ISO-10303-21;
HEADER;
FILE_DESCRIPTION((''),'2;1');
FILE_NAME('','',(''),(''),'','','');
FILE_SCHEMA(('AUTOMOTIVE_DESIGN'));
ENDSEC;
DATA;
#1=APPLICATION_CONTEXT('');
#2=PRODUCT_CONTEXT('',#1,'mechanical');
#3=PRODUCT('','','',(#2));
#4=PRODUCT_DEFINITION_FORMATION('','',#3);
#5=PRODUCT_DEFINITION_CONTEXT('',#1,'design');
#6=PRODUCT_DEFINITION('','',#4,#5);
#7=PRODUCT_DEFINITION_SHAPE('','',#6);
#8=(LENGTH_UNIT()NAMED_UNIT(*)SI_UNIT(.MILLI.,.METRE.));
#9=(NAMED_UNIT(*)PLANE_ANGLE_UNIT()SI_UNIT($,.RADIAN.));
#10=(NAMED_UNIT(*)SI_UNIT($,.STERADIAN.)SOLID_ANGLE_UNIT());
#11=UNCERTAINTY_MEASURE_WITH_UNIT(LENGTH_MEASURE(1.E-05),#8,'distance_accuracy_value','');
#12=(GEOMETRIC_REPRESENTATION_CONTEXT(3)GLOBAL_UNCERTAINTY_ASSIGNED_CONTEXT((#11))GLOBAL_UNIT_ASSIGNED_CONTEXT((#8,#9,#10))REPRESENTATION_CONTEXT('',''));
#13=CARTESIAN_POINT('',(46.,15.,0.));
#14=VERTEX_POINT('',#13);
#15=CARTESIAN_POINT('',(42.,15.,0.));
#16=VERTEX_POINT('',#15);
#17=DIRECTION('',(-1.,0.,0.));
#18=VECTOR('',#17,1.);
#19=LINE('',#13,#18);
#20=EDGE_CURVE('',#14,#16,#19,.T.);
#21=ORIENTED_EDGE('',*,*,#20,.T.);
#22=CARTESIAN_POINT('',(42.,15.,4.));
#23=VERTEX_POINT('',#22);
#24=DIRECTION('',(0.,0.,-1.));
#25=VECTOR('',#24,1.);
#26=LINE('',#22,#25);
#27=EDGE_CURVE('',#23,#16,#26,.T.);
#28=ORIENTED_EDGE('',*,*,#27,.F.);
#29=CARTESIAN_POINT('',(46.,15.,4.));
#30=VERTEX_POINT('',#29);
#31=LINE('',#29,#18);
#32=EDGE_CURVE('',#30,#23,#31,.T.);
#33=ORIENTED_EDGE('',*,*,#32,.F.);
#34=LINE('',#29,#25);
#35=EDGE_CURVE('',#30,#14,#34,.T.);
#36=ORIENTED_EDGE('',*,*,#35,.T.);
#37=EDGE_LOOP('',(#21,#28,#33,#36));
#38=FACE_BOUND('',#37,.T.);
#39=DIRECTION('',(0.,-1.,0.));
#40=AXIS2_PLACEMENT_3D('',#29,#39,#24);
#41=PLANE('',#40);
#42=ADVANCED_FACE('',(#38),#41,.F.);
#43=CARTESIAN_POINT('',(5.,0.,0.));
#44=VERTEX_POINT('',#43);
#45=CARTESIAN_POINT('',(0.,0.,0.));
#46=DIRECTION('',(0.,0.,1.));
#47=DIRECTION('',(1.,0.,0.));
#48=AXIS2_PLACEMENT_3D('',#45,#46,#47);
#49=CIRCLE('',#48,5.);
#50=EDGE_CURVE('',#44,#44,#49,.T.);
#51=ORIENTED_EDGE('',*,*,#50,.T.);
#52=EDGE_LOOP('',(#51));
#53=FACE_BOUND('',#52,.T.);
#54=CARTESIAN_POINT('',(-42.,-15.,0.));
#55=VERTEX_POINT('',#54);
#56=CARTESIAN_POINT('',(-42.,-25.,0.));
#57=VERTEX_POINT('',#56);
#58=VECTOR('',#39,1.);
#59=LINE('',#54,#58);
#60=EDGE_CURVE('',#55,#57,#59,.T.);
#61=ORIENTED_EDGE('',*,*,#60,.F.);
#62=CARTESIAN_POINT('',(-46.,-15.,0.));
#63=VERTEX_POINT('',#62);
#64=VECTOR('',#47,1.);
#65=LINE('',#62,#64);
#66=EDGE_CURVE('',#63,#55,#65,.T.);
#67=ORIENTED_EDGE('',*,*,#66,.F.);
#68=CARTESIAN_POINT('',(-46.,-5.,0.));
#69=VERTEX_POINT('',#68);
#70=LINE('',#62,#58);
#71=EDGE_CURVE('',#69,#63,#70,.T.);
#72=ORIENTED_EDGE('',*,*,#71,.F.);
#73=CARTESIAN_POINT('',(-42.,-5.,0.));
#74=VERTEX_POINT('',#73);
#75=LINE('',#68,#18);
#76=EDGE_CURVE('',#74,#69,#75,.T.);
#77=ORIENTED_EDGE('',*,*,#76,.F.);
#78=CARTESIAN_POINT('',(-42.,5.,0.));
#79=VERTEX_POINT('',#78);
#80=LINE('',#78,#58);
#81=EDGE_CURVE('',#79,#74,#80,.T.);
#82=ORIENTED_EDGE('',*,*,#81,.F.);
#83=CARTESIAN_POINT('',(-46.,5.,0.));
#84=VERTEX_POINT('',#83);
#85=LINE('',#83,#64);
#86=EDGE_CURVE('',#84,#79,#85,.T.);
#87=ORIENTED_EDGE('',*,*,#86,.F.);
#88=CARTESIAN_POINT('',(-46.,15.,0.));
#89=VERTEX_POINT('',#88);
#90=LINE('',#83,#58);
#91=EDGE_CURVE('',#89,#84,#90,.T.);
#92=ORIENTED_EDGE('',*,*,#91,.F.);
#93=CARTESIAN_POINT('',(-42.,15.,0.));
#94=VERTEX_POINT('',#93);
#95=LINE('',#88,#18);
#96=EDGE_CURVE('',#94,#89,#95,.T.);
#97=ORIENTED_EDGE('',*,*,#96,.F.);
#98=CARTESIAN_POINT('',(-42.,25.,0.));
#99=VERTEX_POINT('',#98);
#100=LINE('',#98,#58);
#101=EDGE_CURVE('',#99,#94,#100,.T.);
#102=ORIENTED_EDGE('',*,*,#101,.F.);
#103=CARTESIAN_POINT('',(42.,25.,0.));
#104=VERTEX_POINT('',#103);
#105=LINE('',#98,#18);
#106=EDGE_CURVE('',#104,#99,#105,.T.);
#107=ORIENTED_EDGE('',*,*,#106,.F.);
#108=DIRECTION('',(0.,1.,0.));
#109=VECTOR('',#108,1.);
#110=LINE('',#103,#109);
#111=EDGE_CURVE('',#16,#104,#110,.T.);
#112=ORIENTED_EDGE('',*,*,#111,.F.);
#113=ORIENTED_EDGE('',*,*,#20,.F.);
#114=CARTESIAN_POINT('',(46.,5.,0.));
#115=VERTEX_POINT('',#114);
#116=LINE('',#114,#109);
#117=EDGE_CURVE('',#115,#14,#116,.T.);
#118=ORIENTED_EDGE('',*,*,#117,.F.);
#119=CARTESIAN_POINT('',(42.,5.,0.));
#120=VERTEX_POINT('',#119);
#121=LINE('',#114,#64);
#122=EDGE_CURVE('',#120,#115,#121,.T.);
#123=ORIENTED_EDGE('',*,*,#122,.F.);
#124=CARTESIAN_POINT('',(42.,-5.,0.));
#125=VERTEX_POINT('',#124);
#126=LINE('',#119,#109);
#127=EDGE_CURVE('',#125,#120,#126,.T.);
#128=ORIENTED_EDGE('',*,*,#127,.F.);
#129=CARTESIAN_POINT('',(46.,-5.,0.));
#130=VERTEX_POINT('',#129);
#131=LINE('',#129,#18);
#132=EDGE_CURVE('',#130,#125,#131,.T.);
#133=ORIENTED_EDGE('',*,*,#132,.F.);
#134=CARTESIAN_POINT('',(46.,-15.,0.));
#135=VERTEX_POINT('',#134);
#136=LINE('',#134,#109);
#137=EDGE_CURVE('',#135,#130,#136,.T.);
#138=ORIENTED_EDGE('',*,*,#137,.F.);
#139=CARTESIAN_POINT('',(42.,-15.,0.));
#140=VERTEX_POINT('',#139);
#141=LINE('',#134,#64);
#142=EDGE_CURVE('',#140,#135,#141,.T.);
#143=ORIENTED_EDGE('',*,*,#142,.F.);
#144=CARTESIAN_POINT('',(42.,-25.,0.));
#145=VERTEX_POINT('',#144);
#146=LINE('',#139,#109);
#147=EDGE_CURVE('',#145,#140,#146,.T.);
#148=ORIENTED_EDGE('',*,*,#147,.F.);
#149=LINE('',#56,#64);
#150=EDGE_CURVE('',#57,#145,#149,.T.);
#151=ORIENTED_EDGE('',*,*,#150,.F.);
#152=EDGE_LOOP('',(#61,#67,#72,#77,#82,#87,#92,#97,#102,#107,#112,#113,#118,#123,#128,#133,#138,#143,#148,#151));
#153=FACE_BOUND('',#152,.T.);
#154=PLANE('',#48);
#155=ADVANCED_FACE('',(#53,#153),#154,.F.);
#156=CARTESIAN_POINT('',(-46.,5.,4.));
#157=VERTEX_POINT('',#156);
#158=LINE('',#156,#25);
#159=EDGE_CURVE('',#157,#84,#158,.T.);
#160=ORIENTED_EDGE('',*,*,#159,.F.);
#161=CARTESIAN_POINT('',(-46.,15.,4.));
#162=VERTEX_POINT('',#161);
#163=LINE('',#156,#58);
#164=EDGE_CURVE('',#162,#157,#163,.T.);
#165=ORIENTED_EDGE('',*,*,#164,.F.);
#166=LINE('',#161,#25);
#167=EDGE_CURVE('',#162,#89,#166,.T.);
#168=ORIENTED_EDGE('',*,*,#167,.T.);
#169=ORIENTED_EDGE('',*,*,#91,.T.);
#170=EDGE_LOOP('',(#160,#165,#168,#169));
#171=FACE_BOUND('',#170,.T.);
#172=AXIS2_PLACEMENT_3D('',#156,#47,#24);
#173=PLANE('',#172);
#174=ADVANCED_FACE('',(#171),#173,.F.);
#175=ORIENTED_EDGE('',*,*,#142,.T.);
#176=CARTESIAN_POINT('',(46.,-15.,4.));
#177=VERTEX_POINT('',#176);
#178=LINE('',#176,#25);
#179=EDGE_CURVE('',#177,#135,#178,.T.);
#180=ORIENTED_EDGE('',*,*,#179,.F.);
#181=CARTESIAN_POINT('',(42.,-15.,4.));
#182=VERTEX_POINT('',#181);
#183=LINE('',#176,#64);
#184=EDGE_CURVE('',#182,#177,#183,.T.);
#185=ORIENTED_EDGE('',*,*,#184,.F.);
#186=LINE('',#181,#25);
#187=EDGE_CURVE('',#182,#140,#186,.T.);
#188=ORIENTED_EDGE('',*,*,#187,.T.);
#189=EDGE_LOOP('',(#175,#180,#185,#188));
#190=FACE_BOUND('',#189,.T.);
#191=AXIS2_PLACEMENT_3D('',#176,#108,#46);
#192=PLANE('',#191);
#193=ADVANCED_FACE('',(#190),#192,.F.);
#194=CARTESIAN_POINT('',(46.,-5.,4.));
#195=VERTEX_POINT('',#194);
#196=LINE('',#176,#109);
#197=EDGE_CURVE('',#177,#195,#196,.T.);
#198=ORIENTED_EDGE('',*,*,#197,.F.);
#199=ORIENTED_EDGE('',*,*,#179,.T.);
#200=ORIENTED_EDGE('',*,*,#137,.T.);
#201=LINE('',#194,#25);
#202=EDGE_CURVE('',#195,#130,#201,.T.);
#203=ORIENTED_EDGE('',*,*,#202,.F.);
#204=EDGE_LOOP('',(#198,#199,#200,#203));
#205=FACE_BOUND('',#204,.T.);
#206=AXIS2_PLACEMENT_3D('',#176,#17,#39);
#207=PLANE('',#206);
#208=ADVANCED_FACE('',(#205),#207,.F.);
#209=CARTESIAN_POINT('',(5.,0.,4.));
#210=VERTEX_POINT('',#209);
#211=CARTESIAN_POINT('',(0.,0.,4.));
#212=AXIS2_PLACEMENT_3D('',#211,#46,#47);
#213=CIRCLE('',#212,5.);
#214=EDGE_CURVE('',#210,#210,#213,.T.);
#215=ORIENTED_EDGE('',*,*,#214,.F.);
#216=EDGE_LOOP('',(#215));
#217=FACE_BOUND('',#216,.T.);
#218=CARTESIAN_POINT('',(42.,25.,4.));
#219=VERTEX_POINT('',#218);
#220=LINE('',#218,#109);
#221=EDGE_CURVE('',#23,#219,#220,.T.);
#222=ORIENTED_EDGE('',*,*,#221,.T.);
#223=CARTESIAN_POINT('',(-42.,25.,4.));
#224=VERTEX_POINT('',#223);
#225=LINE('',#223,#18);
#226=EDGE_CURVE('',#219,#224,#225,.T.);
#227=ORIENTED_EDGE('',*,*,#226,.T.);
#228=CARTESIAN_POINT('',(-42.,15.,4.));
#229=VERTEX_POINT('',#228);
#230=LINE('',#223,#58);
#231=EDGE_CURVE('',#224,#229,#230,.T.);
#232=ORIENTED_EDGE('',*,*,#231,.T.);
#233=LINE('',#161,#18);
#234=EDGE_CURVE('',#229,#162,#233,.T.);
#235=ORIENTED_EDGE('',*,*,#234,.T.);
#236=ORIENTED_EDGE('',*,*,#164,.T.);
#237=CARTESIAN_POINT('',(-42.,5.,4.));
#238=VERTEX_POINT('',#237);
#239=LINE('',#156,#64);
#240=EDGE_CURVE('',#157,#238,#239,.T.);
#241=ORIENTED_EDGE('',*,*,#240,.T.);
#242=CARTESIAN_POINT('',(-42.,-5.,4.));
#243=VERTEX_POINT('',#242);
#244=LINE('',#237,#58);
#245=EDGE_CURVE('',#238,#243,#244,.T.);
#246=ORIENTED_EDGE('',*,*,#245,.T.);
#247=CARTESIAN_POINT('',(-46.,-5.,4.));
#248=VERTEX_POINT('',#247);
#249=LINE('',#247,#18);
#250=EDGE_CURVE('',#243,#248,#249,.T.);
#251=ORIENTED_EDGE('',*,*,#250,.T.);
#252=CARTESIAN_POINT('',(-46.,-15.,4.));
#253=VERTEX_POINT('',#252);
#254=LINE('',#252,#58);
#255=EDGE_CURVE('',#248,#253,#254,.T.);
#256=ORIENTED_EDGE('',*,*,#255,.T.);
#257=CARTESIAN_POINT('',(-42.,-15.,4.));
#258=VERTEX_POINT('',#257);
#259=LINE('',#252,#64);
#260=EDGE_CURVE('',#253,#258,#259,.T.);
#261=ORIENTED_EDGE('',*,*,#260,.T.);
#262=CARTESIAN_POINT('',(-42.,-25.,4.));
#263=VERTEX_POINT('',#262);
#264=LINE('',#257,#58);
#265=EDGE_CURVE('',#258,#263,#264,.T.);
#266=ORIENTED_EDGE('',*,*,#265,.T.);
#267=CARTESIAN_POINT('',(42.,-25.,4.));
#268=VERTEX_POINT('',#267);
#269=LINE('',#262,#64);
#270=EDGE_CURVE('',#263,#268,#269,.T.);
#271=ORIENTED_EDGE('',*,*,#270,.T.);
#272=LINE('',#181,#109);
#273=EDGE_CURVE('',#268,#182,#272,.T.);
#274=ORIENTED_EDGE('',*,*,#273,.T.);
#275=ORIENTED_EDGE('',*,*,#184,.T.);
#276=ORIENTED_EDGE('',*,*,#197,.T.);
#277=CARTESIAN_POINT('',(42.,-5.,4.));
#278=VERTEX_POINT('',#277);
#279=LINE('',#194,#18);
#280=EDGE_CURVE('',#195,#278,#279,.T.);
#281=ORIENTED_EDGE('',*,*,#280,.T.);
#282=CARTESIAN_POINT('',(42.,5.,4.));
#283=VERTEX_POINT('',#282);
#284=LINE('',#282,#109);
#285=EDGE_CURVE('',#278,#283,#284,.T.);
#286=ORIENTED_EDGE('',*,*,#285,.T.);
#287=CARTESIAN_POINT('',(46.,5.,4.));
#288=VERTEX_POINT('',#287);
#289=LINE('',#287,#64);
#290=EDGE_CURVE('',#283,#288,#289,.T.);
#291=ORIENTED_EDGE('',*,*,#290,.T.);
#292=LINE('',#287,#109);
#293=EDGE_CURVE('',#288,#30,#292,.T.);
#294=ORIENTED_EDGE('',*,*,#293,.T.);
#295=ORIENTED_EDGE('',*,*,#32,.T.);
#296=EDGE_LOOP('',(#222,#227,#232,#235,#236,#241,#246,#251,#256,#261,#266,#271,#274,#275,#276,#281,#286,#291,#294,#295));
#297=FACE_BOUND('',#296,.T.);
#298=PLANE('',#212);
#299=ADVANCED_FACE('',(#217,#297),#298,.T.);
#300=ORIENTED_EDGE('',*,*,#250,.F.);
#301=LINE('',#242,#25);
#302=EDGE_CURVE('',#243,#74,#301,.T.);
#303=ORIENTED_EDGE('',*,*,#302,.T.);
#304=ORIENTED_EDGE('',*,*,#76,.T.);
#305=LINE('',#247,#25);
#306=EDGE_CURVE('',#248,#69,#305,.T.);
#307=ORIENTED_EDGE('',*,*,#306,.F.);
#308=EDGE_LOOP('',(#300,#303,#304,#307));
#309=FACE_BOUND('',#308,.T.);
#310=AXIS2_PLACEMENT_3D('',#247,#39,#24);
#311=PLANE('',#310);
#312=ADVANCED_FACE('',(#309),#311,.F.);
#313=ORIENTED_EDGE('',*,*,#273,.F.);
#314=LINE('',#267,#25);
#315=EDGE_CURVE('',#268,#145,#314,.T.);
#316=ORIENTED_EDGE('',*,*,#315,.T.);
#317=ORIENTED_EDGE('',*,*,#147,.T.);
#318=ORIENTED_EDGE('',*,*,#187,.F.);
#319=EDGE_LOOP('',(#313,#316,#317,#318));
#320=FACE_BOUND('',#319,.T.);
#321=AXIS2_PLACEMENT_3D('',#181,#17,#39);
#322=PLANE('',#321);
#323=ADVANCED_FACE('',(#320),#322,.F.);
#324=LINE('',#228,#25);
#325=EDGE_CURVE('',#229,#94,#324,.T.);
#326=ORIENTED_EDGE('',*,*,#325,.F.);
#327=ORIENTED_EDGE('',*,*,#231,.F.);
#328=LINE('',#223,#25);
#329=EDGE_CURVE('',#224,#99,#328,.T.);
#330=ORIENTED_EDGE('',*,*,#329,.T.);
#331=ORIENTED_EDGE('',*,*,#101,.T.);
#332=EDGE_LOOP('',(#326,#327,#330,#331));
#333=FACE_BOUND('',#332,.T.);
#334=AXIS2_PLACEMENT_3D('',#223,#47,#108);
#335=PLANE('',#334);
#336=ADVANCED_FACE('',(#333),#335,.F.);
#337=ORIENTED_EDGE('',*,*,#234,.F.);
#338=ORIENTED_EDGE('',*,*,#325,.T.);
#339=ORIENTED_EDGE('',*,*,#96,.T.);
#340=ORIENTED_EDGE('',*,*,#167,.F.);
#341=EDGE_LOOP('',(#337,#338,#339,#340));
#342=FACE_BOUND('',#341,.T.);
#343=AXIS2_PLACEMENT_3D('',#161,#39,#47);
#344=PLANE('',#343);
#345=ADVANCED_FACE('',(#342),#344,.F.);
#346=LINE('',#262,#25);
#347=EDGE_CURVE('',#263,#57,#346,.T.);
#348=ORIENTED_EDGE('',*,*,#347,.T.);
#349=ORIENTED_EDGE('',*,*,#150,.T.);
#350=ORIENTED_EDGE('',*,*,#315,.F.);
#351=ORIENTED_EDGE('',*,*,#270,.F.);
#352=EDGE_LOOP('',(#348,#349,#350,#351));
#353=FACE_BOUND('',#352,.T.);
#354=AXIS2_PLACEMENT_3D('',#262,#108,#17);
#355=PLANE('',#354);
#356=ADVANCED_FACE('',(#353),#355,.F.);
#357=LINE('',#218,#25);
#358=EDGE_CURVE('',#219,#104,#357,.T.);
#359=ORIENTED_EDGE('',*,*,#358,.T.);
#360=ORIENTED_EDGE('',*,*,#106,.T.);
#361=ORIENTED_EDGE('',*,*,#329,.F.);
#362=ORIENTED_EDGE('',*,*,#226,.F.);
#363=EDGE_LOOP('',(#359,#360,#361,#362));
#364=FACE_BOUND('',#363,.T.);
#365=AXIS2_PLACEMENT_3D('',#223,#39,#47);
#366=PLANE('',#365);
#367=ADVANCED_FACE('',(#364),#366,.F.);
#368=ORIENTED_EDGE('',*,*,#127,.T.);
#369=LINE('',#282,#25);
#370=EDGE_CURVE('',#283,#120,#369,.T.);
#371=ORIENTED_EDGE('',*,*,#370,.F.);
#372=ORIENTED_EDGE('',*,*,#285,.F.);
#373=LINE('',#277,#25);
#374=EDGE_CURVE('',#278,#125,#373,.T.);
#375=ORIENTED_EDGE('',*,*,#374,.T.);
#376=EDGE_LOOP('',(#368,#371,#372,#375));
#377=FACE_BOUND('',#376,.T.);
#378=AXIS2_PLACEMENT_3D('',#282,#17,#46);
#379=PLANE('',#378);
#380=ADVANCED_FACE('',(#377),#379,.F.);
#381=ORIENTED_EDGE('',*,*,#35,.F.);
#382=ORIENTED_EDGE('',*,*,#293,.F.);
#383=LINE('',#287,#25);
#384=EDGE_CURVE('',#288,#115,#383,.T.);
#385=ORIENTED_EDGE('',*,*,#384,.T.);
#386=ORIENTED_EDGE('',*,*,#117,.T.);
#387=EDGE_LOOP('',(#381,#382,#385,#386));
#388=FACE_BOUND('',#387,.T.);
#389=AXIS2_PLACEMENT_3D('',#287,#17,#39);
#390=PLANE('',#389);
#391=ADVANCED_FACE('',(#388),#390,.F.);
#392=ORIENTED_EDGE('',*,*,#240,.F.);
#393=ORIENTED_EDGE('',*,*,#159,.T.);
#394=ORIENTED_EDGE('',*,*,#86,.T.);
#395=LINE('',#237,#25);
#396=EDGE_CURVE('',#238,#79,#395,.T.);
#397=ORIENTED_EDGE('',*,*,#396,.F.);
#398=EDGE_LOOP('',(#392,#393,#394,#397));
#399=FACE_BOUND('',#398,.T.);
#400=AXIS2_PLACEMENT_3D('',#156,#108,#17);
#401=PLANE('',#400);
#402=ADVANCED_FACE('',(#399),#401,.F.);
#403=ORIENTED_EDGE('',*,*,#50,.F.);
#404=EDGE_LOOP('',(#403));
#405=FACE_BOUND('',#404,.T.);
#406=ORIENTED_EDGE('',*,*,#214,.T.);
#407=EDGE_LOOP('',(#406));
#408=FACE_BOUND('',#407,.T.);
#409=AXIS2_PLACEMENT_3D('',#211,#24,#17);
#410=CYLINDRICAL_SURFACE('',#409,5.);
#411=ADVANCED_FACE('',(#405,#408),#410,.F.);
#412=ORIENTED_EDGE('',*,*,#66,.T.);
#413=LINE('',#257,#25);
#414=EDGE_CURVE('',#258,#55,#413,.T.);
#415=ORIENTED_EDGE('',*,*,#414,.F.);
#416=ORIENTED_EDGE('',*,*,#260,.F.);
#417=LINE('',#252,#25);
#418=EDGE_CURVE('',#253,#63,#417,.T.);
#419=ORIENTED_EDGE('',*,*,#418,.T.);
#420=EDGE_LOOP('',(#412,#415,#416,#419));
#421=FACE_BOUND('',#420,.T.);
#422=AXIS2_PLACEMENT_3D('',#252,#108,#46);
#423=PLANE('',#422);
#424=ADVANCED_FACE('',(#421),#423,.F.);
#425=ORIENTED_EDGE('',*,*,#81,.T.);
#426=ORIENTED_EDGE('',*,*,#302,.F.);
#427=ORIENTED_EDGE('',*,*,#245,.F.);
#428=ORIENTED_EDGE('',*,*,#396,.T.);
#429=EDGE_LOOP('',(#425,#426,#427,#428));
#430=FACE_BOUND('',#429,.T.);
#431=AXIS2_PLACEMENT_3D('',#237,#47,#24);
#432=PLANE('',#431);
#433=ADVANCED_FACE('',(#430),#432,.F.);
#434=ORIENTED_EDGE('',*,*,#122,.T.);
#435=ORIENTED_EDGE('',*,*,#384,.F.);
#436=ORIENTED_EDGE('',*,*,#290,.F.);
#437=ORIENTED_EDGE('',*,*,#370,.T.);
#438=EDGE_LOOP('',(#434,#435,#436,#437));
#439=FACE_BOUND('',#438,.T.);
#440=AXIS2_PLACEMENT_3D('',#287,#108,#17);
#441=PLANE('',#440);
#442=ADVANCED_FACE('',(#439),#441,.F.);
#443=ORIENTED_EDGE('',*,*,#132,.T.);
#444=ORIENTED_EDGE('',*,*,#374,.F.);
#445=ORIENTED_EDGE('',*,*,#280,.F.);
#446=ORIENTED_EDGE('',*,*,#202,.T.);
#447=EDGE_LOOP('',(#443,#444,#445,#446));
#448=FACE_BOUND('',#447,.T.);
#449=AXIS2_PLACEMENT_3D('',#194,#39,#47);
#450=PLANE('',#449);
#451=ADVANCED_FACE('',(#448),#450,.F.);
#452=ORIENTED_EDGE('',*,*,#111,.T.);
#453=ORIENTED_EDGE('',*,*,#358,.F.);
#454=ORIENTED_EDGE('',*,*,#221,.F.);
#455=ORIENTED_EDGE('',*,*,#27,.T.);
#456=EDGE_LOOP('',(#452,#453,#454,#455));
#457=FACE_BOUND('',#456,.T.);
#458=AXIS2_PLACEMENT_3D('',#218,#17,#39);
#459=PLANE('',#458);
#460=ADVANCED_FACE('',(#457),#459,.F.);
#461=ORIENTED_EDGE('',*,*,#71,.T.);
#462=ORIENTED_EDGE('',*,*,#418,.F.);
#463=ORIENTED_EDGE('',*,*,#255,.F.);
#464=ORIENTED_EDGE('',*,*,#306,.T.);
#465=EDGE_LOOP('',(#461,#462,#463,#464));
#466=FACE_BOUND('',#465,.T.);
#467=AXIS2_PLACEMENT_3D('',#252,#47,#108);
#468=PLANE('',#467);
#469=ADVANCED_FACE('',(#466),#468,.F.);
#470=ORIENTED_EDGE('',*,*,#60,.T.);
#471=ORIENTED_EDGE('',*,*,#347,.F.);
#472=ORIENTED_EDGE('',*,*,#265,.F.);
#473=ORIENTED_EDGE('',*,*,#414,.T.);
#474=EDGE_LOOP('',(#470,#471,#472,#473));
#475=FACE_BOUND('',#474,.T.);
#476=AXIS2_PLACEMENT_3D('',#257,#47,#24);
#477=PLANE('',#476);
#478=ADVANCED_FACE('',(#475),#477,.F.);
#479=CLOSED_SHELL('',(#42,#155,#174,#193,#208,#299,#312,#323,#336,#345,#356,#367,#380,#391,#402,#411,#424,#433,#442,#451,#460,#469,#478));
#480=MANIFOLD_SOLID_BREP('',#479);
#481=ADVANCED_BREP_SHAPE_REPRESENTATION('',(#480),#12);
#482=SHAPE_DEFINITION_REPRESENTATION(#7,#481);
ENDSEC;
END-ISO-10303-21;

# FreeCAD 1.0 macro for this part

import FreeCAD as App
import Part
import Sketcher
from FreeCAD import Vector


def add_polygon(sketch, points):
    """Adds a closed chain of lines whose ends are joined by coincident constraints."""
    first, n = sketch.GeometryCount, len(points)
    for a, b in zip(points, points[1:] + points[:1]):
        sketch.addGeometry(Part.LineSegment(App.Vector(*a, 0), App.Vector(*b, 0)), False)
    for i in range(n):
        sketch.addConstraint(Sketcher.Constraint("Coincident", first + i, 2, first + (i + 1) % n, 1))

doc = App.newDocument("Part")
params = doc.addObject("Spreadsheet::Sheet", "Params")
for row, (alias, value) in enumerate([
    ("sketch1_diameter", "10 mm"),
    ("sketch1_width", "4 mm"),
    ("sketch1_width2", "84 mm"),
    ("sketch1_height", "10 mm"),
    ("pad1_length", "4 mm"),
], start=1):
    params.set(f"A{row}", alias)
    params.set(f"B{row}", "=" + value)
    params.setAlias(f"B{row}", alias)

body = doc.addObject("PartDesign::Body", "Body")

sketch1 = doc.addObject("Sketcher::SketchObject", "Sketch")
body.addObject(sketch1)
sketch1.AttachmentSupport = (doc.XY_Plane, [""])
sketch1.MapMode = "FlatFace"
add_polygon(sketch1, [(-46, 15), (-46, 5), (-42, 5), (-42, -5), (-46, -5), (-46, -15), (-42, -15), (-42, -25), (42, -25), (42, -15), (46, -15), (46, -5), (42, -5), (42, 5), (46, 5), (46, 15), (42, 15), (42, 25), (-42, 25), (-42, 15)])
sketch1.addGeometry(Part.Circle(Vector(0, 0, 0), Vector(0, 0, 1), 5), False)
sketch1.addConstraint(Sketcher.Constraint("Vertical", 0))
sketch1.addConstraint(Sketcher.Constraint("Horizontal", 1))
sketch1.addConstraint(Sketcher.Constraint("Vertical", 2))
sketch1.addConstraint(Sketcher.Constraint("Horizontal", 3))
sketch1.addConstraint(Sketcher.Constraint("Vertical", 4))
sketch1.addConstraint(Sketcher.Constraint("Horizontal", 5))
sketch1.addConstraint(Sketcher.Constraint("Vertical", 6))
sketch1.addConstraint(Sketcher.Constraint("Horizontal", 7))
sketch1.addConstraint(Sketcher.Constraint("Vertical", 8))
sketch1.addConstraint(Sketcher.Constraint("Horizontal", 9))
sketch1.addConstraint(Sketcher.Constraint("Vertical", 10))
sketch1.addConstraint(Sketcher.Constraint("Horizontal", 11))
sketch1.addConstraint(Sketcher.Constraint("Vertical", 12))
sketch1.addConstraint(Sketcher.Constraint("Horizontal", 13))
sketch1.addConstraint(Sketcher.Constraint("Vertical", 14))
sketch1.addConstraint(Sketcher.Constraint("Horizontal", 15))
sketch1.addConstraint(Sketcher.Constraint("Vertical", 16))
sketch1.addConstraint(Sketcher.Constraint("Horizontal", 17))
sketch1.addConstraint(Sketcher.Constraint("Vertical", 18))
sketch1.addConstraint(Sketcher.Constraint("Horizontal", 19))
sketch1.addConstraint(Sketcher.Constraint("Coincident", 20, 3, -1, 1))
sketch1.addConstraint(Sketcher.Constraint("Symmetric", 0, 2, 10, 2, -1, 1))
sketch1.addConstraint(Sketcher.Constraint("Symmetric", 2, 2, 12, 2, -1, 1))
sketch1.addConstraint(Sketcher.Constraint("Symmetric", 4, 2, 14, 2, -1, 1))
sketch1.addConstraint(Sketcher.Constraint("Symmetric", 6, 2, 16, 2, -1, 1))
sketch1.addConstraint(Sketcher.Constraint("Symmetric", 8, 2, 18, 2, -1, 1))
sketch1.addConstraint(Sketcher.Constraint("Symmetric", 5, 2, 8, 2, -2))
sketch1.addConstraint(Sketcher.Constraint("Symmetric", 3, 2, 10, 2, -2))
sketch1.addConstraint(Sketcher.Constraint("Vertical", 2, 2, 5, 2))
sketch1.addConstraint(Sketcher.Constraint("Equal", 0, 2))
sketch1.addConstraint(Sketcher.Constraint("Equal", 4, 6))
sketch1.addConstraint(Sketcher.Constraint("Diameter", 20, 10.0))
sketch1.addConstraint(Sketcher.Constraint("DistanceX", 1, 1, 1, 2, 4.0))
sketch1.addConstraint(Sketcher.Constraint("DistanceX", 7, 1, 7, 2, 84.0))
sketch1.addConstraint(Sketcher.Constraint("DistanceY", 0, 2, 0, 1, 10.0))
sketch1.setExpression("Constraints[51]", "Params.sketch1_diameter")
sketch1.setExpression("Constraints[52]", "Params.sketch1_width")
sketch1.setExpression("Constraints[53]", "Params.sketch1_width2")
sketch1.setExpression("Constraints[54]", "Params.sketch1_height")
pad1 = doc.addObject("PartDesign::Pad", "Pad")
body.addObject(pad1)
pad1.Profile = sketch1
pad1.setExpression("Length", "Params.pad1_length")

doc.recompute()
